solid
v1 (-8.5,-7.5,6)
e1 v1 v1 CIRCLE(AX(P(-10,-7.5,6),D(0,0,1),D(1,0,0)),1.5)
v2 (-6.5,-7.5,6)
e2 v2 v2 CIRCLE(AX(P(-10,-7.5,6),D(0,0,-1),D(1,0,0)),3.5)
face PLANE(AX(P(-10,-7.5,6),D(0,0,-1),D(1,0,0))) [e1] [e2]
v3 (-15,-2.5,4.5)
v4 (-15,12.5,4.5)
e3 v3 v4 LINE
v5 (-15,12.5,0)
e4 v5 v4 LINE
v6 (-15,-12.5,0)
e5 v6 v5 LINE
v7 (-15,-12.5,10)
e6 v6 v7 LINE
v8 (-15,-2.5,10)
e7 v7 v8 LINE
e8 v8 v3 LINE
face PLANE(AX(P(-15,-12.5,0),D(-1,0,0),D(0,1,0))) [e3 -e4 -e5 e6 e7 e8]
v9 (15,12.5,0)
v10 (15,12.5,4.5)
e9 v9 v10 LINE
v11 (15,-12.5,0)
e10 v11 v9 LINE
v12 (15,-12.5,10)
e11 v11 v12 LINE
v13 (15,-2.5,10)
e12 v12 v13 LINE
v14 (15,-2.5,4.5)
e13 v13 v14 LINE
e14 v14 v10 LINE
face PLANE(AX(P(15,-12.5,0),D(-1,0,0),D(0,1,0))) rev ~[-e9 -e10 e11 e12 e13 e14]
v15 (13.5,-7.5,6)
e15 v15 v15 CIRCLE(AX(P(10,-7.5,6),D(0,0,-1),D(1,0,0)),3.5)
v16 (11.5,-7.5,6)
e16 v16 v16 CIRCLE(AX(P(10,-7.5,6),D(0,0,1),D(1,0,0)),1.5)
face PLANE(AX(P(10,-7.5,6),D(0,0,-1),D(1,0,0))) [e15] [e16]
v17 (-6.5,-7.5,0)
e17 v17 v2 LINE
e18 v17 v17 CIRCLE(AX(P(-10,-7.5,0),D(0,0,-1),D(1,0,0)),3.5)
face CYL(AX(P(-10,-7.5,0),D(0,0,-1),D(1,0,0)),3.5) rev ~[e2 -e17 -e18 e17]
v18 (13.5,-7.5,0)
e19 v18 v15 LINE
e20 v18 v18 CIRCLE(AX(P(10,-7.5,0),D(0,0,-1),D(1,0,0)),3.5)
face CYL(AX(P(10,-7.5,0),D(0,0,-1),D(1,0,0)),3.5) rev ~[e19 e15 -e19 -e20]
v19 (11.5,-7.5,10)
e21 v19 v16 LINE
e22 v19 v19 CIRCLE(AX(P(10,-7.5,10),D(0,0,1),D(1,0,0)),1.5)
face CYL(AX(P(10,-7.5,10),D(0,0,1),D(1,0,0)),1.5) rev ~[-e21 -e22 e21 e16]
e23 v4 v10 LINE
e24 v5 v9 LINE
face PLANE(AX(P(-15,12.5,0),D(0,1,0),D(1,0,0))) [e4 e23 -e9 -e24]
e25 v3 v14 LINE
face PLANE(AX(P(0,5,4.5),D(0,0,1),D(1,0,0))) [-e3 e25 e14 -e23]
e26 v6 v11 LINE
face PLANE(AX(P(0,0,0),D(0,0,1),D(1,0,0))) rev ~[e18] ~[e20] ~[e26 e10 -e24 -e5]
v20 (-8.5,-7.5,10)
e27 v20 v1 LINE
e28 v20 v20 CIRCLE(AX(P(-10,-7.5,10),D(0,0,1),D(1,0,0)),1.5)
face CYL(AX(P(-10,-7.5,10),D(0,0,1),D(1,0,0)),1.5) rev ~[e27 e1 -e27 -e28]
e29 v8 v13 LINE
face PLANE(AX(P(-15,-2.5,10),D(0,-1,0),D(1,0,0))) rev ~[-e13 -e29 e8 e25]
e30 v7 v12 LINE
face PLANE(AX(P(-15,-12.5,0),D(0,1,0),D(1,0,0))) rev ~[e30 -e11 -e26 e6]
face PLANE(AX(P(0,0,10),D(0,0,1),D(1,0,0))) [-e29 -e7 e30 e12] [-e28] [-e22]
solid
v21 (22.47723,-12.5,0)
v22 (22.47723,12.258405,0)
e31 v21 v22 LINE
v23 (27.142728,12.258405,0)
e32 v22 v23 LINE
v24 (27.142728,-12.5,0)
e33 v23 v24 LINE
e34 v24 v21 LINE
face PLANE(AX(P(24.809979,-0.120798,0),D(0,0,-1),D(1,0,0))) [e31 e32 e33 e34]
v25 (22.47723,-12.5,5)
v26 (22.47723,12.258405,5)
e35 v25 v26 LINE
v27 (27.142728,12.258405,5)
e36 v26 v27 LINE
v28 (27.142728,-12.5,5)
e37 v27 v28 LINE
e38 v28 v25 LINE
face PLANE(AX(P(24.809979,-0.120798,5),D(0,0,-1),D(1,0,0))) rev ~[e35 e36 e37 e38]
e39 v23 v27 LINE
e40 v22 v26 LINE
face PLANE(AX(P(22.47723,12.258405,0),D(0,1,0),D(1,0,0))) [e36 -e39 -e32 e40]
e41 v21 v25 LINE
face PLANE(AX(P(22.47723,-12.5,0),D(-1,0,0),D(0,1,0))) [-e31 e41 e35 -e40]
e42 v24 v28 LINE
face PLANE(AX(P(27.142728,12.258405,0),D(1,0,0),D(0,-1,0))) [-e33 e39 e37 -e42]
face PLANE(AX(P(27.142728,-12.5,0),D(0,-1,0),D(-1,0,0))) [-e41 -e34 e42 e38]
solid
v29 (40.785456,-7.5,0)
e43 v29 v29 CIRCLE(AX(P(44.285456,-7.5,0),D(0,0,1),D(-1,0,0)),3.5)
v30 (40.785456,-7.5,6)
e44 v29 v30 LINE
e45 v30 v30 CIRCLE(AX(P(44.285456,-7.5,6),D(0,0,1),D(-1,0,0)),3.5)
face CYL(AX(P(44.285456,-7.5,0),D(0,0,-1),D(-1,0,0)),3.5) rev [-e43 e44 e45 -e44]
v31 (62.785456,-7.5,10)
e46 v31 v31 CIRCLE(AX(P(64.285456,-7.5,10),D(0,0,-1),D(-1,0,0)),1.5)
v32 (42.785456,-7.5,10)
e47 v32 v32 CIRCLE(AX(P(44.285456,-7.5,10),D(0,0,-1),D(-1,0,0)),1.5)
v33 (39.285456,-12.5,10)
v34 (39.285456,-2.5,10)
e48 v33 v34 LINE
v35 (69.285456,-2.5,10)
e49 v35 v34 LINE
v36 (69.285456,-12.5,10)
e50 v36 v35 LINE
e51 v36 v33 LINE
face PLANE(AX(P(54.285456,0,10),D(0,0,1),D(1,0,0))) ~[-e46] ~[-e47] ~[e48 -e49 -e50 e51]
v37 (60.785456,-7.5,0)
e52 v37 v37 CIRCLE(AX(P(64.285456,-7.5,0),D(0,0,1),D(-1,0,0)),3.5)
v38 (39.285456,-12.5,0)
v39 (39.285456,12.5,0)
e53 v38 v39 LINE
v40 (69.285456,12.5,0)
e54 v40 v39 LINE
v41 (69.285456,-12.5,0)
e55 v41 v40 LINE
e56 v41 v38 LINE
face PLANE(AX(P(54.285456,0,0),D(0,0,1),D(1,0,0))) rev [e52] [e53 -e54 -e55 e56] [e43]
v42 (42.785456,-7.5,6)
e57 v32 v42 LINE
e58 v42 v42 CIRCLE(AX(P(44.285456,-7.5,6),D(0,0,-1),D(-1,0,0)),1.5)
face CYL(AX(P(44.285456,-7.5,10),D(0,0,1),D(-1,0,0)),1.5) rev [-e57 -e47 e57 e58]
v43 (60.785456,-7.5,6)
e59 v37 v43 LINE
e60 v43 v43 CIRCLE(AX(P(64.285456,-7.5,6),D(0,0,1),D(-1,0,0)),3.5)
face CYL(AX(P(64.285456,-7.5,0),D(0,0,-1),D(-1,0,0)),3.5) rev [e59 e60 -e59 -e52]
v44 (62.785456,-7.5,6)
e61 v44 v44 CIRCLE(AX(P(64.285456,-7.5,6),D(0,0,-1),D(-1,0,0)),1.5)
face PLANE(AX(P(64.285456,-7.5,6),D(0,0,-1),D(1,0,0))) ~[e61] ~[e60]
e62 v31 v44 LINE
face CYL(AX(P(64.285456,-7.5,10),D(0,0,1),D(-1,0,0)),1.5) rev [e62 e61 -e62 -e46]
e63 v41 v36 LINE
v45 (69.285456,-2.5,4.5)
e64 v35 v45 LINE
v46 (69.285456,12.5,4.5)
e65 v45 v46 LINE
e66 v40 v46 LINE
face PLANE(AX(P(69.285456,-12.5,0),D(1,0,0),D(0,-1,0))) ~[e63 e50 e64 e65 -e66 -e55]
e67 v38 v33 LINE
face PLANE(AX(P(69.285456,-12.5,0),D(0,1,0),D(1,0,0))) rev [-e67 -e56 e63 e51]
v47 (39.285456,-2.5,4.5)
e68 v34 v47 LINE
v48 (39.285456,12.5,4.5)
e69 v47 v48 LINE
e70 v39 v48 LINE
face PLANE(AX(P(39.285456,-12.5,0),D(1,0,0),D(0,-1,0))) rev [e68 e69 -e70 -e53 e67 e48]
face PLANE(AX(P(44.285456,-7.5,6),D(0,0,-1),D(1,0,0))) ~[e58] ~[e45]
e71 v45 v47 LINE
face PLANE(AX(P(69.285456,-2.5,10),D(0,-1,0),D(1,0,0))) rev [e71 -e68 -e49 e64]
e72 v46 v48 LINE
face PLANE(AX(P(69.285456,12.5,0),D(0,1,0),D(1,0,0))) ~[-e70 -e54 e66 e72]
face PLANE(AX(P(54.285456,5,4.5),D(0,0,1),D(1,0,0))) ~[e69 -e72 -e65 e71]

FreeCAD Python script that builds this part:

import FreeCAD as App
import Part
import Sketcher
Q = App.Units.Quantity


def add_polygon(sketch, points):
    """Adds a closed chain of lines whose ends are joined by coincident constraints."""
    first, n = sketch.GeometryCount, len(points)
    for a, b in zip(points, points[1:] + points[:1]):
        sketch.addGeometry(Part.LineSegment(App.Vector(*a, 0), App.Vector(*b, 0)), False)
    for i in range(n):
        sketch.addConstraint(Sketcher.Constraint("Coincident", first + i, 2, first + (i + 1) % n, 1))

doc = App.newDocument("Part")
body = doc.addObject("PartDesign::Body", "Body")

# Sketch on XY plane
sketch1 = doc.addObject("Sketcher::SketchObject", "Sketch")
body.addObject(sketch1)
sketch1.AttachmentSupport = (doc.XY_Plane, [""])
sketch1.MapMode = "FlatFace"
add_polygon(sketch1, [(-15, 12), (-15, -12), (15, -12), (15, 12)])  # lines 0-3
sketch1.addConstraint([
    Sketcher.Constraint("Vertical", 0),
    Sketcher.Constraint("Horizontal", 1),
    Sketcher.Constraint("Vertical", 2),
    Sketcher.Constraint("Horizontal", 3),
    Sketcher.Constraint("Symmetric", 0, 2, 2, 2, -1, 1),
    Sketcher.Constraint("DistanceX", 1, 1, 1, 2, Q("30 mm")),
    Sketcher.Constraint("DistanceY", 0, 2, 0, 1, Q("25 mm")),
])
pad1 = doc.addObject("PartDesign::Pad", "Pad")
body.addObject(pad1)
pad1.Profile = sketch1
pad1.Length = 10

# Sketch on XY plane
sketch2 = doc.addObject("Sketcher::SketchObject", "Sketch001")
body.addObject(sketch2)
sketch2.AttachmentSupport = (doc.XY_Plane, [""])
sketch2.MapMode = "FlatFace"
sketch2.AttachmentOffset = App.Placement(App.Vector(0, 0, 10), App.Rotation())
add_polygon(sketch2, [(-15, 12), (-15, -2), (15, -2), (15, 12)])  # lines 0-3
sketch2.addConstraint([
    Sketcher.Constraint("Vertical", 0),
    Sketcher.Constraint("Horizontal", 1),
    Sketcher.Constraint("Vertical", 2),
    Sketcher.Constraint("Horizontal", 3),
    Sketcher.Constraint("DistanceX", 1, 1, 1, 2, Q("30 mm")),
    Sketcher.Constraint("DistanceY", 0, 2, 0, 1, Q("15 mm")),
    Sketcher.Constraint("DistanceX", 0, 2, -1, 1, Q("15 mm")),
    Sketcher.Constraint("DistanceY", 0, 2, -1, 1, Q("2.5 mm")),
])
pocket1 = doc.addObject("PartDesign::Pocket", "Pocket")
body.addObject(pocket1)
pocket1.Profile = sketch2
pocket1.Length = 5.5

# Sketch on XY plane
sketch3 = doc.addObject("Sketcher::SketchObject", "Sketch002")
body.addObject(sketch3)
sketch3.AttachmentSupport = (doc.XY_Plane, [""])
sketch3.MapMode = "FlatFace"
sketch3.AttachmentOffset = App.Placement(App.Vector(0, 0, 10), App.Rotation())
sketch3.addGeometry([
    Part.Circle(App.Vector(10, -7.5, 0), App.Vector(0, 0, 1), 1.5),
    Part.Circle(App.Vector(-10, -7.5, 0), App.Vector(0, 0, 1), 1.5),
], False)
sketch3.addConstraint([
    Sketcher.Constraint("Equal", 0, 1),
    Sketcher.Constraint("Symmetric", 0, 3, 1, 3, -2),
    Sketcher.Constraint("Diameter", 0, Q("3 mm")),
    Sketcher.Constraint("DistanceX", -1, 1, 0, 3, Q("10 mm")),
    Sketcher.Constraint("DistanceY", 0, 3, -1, 1, Q("7.5 mm")),
])
pocket2 = doc.addObject("PartDesign::Pocket", "Pocket001")
body.addObject(pocket2)
pocket2.Profile = sketch3
pocket2.Length = 25

# Sketch on XY plane
sketch4 = doc.addObject("Sketcher::SketchObject", "Sketch003")
body.addObject(sketch4)
sketch4.AttachmentSupport = (doc.XY_Plane, [""])
sketch4.MapMode = "FlatFace"
sketch4.addGeometry([
    Part.Circle(App.Vector(10, -7.5, 0), App.Vector(0, 0, 1), 3.5),
    Part.Circle(App.Vector(-10, -7.5, 0), App.Vector(0, 0, 1), 3.5),
], False)
sketch4.addConstraint([
    Sketcher.Constraint("Equal", 0, 1),
    Sketcher.Constraint("Symmetric", 0, 3, 1, 3, -2),
    Sketcher.Constraint("Diameter", 0, Q("7 mm")),
    Sketcher.Constraint("DistanceX", -1, 1, 0, 3, Q("10 mm")),
    Sketcher.Constraint("DistanceY", 0, 3, -1, 1, Q("7.5 mm")),
])
pocket3 = doc.addObject("PartDesign::Pocket", "Pocket002")
body.addObject(pocket3)
pocket3.Profile = sketch4
pocket3.Length = 6
pocket3.Reversed = True
body2 = doc.addObject("PartDesign::Body", "Body001")

# Sketch on XY plane
sketch5 = doc.addObject("Sketcher::SketchObject", "Sketch004")
body2.addObject(sketch5)
sketch5.AttachmentSupport = (doc.getObject("XY_Plane001"), [""])
sketch5.MapMode = "FlatFace"
add_polygon(sketch5, [(22.5, -12.5), (22.5, 12.3), (27.1, 12.3), (27.1, -12.5)])  # lines 0-3
sketch5.addConstraint([
    Sketcher.Constraint("Vertical", 0),
    Sketcher.Constraint("Horizontal", 1),
    Sketcher.Constraint("Vertical", 2),
    Sketcher.Constraint("Horizontal", 3),
    Sketcher.Constraint("DistanceY", 2, 2, -1, 1, Q("12.5 mm")),
    Sketcher.Constraint("DistanceX", 1, 1, 1, 2, Q("4.665498 mm")),
    Sketcher.Constraint("DistanceY", 0, 1, 0, 2, Q("24.758405 mm")),
    Sketcher.Constraint("DistanceX", -1, 1, 0, 2, Q("22.47723 mm")),
])
pad2 = doc.addObject("PartDesign::Pad", "Pad001")
body2.addObject(pad2)
pad2.Profile = sketch5
pad2.Length = 5
body3 = doc.addObject("PartDesign::Body", "Body002")
doc.recompute()

mirroring = doc.addObject("Part::Mirroring", "Mirroring")
mirroring.Source = body
mirroring.Base = App.Vector(27.142728, -0.120798, 2.5)
mirroring.Normal = App.Vector(1, 0, 0)
body3.BaseFeature = mirroring
doc.recompute()
mirroring.Visibility = False

doc.recompute()
